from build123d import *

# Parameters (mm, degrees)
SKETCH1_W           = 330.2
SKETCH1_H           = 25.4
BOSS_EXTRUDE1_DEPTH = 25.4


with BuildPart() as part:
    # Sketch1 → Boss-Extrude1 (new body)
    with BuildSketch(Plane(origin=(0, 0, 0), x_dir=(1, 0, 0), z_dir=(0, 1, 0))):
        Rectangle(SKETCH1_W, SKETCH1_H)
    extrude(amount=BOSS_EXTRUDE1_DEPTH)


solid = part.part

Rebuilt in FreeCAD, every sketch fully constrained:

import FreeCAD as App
import Part
import Sketcher
Q = App.Units.Quantity

doc = App.newDocument("Part")
body = doc.addObject("PartDesign::Body", "Body")

sketch1 = body.newObject("Sketcher::SketchObject", "Sketch")
sketch1.AttachmentSupport = (doc.getObject("XZ_Plane"), [""])
sketch1.MapMode = "FlatFace"
sketch1.addGeometry(Part.LineSegment(App.Vector(-165, -13, 0), App.Vector(-165, 13, 0)), False)
sketch1.addGeometry(Part.LineSegment(App.Vector(-165, 13, 0), App.Vector(165, 13, 0)), False)
sketch1.addGeometry(Part.LineSegment(App.Vector(165, 13, 0), App.Vector(165, -13, 0)), False)
sketch1.addGeometry(Part.LineSegment(App.Vector(165, -13, 0), App.Vector(-165, -13, 0)), False)
sketch1.addConstraint(Sketcher.Constraint("Coincident", 0, 2, 1, 1))
sketch1.addConstraint(Sketcher.Constraint("Coincident", 1, 2, 2, 1))
sketch1.addConstraint(Sketcher.Constraint("Coincident", 2, 2, 3, 1))
sketch1.addConstraint(Sketcher.Constraint("Coincident", 3, 2, 0, 1))
sketch1.addConstraint(Sketcher.Constraint("Vertical", 0))
sketch1.addConstraint(Sketcher.Constraint("Horizontal", 1))
sketch1.addConstraint(Sketcher.Constraint("Vertical", 2))
sketch1.addConstraint(Sketcher.Constraint("Horizontal", 3))
sketch1.addConstraint(Sketcher.Constraint("Symmetric", 0, 2, 2, 2, -1, 1))
sketch1.addConstraint(Sketcher.Constraint("DistanceX", 1, 1, 1, 2, Q("13 in")))
sketch1.addConstraint(Sketcher.Constraint("DistanceY", 0, 1, 0, 2, Q("1 in")))
pad1 = body.newObject("PartDesign::Pad", "Pad")
pad1.Profile = sketch1
pad1.Length = Q("1 in")
pad1.Reversed = True

doc.recompute()
